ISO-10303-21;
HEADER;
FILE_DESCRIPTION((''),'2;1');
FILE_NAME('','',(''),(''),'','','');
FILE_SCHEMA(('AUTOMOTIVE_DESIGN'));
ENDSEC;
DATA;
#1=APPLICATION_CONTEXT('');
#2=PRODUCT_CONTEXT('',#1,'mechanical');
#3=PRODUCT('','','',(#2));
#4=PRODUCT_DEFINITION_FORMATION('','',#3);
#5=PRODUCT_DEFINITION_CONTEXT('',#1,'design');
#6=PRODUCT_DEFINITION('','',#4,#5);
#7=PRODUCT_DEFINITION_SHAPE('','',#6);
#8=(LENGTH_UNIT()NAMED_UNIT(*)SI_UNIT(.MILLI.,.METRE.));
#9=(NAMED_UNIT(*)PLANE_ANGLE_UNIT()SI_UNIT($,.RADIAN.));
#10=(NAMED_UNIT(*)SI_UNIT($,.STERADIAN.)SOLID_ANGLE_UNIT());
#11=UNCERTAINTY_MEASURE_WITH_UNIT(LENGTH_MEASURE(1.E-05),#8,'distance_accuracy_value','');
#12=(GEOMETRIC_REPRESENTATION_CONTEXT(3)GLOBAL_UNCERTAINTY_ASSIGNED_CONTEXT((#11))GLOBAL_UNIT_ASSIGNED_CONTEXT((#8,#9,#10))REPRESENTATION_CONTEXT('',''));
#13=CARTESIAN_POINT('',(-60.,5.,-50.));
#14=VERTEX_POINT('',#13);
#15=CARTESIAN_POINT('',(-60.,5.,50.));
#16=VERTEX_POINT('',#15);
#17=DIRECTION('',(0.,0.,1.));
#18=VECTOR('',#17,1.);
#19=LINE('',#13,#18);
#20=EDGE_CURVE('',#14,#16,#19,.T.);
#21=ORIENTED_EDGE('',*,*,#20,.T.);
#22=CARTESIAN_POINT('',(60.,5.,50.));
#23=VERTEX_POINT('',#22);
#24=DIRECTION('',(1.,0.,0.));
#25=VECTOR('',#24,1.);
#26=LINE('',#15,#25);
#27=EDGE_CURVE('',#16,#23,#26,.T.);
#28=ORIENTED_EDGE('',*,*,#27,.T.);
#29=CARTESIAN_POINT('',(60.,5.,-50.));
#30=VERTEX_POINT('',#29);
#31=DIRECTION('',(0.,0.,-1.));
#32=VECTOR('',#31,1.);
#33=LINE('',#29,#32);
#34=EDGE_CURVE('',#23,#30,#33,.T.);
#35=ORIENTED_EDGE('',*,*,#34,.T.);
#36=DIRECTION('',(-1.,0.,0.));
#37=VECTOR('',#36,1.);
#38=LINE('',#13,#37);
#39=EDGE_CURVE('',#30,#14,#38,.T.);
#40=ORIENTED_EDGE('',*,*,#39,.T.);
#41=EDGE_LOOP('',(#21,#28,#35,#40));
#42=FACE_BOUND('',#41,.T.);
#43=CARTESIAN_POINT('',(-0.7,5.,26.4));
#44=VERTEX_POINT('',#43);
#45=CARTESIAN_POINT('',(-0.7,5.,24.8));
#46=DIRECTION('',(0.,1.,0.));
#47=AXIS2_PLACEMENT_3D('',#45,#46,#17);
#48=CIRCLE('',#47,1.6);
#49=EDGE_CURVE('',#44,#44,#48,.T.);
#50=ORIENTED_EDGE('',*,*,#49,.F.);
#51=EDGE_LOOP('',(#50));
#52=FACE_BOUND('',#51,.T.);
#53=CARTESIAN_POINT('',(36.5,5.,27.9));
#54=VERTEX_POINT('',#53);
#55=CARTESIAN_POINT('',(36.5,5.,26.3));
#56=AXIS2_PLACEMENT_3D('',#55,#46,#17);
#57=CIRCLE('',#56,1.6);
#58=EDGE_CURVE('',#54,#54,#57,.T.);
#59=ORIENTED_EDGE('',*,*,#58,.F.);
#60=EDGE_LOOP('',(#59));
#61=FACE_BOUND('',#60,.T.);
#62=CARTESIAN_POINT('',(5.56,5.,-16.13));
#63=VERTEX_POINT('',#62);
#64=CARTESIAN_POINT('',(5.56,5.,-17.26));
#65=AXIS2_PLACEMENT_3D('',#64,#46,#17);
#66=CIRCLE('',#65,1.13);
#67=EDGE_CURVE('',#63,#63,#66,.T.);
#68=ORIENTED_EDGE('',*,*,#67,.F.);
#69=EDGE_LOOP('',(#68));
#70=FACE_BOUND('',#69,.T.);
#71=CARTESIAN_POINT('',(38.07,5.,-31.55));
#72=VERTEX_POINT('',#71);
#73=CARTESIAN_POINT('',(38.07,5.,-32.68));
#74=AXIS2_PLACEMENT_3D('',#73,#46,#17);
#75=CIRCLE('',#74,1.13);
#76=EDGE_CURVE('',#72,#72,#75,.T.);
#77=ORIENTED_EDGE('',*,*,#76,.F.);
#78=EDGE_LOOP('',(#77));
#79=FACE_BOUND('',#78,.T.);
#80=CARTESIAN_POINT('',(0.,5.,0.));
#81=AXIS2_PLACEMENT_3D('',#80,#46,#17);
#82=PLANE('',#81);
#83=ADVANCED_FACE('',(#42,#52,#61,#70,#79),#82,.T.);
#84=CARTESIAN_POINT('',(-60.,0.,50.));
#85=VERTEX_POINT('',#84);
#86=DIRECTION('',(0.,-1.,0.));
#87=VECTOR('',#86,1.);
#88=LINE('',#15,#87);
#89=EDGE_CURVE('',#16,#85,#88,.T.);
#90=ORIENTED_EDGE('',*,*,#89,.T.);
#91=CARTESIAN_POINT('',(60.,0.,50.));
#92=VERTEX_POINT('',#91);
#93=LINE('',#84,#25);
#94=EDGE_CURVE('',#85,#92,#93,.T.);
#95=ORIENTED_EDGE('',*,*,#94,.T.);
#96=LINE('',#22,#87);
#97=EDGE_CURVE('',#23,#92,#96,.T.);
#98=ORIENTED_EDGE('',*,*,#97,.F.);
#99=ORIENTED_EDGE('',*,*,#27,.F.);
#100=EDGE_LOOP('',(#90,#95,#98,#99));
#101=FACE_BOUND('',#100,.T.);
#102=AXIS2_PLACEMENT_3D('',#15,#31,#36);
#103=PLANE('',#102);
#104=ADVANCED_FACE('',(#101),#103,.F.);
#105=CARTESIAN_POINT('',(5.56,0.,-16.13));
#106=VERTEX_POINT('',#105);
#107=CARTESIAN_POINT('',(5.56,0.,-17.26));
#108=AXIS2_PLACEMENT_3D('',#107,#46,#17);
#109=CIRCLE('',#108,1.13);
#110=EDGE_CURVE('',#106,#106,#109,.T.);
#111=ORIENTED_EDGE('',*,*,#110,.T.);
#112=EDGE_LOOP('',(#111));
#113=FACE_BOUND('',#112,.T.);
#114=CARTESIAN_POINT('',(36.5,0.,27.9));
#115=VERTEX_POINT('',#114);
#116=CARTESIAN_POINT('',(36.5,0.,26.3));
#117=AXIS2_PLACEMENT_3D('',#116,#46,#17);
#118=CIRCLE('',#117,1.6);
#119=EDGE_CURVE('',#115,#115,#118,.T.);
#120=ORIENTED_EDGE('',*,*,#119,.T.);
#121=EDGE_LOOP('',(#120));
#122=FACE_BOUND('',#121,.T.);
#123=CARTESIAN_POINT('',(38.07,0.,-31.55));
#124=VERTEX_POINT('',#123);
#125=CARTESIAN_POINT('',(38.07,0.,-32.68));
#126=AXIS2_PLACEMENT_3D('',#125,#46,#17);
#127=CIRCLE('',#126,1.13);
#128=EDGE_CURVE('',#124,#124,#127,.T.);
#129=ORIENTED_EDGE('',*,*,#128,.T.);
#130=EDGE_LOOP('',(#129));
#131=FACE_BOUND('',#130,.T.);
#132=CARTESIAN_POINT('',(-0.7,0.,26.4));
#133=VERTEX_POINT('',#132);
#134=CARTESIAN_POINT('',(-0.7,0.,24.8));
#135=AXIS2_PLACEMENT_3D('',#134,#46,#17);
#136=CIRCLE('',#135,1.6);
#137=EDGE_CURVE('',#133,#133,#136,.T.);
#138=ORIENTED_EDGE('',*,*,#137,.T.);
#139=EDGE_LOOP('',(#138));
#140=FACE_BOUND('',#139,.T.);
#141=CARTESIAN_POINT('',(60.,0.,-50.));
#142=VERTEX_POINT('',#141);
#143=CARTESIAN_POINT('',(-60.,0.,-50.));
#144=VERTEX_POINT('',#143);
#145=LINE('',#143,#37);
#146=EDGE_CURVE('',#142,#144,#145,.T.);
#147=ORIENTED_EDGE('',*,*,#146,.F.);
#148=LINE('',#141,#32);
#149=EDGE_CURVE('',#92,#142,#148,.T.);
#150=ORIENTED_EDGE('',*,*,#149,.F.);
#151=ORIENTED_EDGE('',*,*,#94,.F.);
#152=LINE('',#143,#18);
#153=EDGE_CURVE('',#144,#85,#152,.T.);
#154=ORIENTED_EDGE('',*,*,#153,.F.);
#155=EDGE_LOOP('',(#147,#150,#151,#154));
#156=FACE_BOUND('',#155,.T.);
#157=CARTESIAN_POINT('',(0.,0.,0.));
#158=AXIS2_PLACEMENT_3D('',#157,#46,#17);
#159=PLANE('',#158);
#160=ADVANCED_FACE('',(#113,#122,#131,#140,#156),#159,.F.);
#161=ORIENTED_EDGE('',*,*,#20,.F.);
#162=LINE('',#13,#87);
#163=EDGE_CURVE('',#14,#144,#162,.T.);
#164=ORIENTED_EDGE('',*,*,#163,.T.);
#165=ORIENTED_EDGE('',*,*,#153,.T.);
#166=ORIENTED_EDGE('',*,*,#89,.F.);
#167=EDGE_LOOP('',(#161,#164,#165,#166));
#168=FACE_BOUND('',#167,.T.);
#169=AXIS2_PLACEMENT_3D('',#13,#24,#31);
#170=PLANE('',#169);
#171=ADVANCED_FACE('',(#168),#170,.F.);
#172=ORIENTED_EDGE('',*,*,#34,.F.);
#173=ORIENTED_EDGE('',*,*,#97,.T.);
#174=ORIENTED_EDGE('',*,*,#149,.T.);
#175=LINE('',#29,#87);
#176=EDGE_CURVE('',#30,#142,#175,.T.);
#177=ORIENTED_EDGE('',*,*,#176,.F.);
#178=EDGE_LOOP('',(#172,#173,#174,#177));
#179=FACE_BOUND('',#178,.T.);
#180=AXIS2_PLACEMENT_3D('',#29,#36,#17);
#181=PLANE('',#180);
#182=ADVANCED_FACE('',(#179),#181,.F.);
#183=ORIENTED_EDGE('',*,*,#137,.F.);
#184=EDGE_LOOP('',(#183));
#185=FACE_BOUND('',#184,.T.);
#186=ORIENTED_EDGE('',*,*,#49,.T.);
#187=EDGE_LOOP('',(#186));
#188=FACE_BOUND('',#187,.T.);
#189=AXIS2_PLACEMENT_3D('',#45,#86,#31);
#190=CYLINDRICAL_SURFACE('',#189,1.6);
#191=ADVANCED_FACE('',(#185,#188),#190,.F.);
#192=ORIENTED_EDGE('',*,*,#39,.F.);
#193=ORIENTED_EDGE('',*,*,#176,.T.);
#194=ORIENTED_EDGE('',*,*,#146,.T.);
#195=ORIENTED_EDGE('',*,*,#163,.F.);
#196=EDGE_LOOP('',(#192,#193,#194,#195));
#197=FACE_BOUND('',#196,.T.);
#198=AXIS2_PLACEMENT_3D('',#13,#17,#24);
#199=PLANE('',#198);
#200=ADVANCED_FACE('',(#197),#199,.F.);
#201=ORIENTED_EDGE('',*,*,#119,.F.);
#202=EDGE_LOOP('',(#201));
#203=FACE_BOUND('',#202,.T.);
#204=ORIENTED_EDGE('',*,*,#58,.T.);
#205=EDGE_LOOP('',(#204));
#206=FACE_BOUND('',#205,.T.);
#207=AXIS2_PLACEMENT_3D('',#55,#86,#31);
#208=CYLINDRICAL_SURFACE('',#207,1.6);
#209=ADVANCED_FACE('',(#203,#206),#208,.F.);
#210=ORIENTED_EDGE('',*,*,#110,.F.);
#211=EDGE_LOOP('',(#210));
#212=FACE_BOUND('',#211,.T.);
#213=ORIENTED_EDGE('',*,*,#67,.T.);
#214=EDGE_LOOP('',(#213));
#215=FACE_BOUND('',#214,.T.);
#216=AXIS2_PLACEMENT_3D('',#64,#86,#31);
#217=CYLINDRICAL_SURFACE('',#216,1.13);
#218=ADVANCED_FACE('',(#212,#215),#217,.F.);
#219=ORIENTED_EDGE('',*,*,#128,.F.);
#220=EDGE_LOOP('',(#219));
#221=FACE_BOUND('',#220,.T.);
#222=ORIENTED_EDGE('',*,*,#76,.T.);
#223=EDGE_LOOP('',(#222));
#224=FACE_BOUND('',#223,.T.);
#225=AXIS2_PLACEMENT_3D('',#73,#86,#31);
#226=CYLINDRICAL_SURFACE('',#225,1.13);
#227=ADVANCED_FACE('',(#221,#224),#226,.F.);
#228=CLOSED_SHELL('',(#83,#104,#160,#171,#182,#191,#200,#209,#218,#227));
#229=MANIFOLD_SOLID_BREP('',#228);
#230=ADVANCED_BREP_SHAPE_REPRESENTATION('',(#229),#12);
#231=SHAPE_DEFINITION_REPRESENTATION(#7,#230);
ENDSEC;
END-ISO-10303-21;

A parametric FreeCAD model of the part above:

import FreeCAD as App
import Part
import Sketcher
from FreeCAD import Vector
Q = App.Units.Quantity

doc = App.newDocument("Part")
params = doc.addObject("Spreadsheet::Sheet", "Params")
for row, (alias, value) in enumerate([
    ("sketch1_diameter", "3.2 mm"),
    ("sketch1_diameter2", "2.26 mm"),
    ("sketch1_width", "120 mm"),
    ("sketch1_height", "100 mm"),
    ("pad1_length", "5 mm"),
], start=1):
    params.set(f"A{row}", alias)
    params.set(f"B{row}", "=" + value)
    params.setAlias(f"B{row}", alias)

body = doc.addObject("PartDesign::Body", "Body")

# Sketch on XZ plane
sketch1 = doc.addObject("Sketcher::SketchObject", "Sketch")
body.addObject(sketch1)
sketch1.AttachmentSupport = (doc.XZ_Plane, [""])
sketch1.MapMode = "FlatFace"
sketch1.addGeometry(Part.LineSegment(Vector(-60, -50, 0), Vector(-60, 50, 0)), False)
sketch1.addGeometry(Part.LineSegment(Vector(-60, 50, 0), Vector(60, 50, 0)), False)
sketch1.addGeometry(Part.LineSegment(Vector(60, 50, 0), Vector(60, -50, 0)), False)
sketch1.addGeometry(Part.LineSegment(Vector(60, -50, 0), Vector(-60, -50, 0)), False)
sketch1.addGeometry(Part.Circle(Vector(-0.7, 24.8, 0), Vector(0, 0, 1), 1.6), False)
sketch1.addGeometry(Part.Circle(Vector(36.5, 26.3, 0), Vector(0, 0, 1), 1.6), False)
sketch1.addGeometry(Part.Circle(Vector(5.6, -17.3, 0), Vector(0, 0, 1), 1.1), False)
sketch1.addGeometry(Part.Circle(Vector(38.1, -32.7, 0), Vector(0, 0, 1), 1.1), False)
sketch1.addConstraint(Sketcher.Constraint("Coincident", 0, 2, 1, 1))
sketch1.addConstraint(Sketcher.Constraint("Coincident", 1, 2, 2, 1))
sketch1.addConstraint(Sketcher.Constraint("Coincident", 2, 2, 3, 1))
sketch1.addConstraint(Sketcher.Constraint("Coincident", 3, 2, 0, 1))
sketch1.addConstraint(Sketcher.Constraint("Vertical", 0))
sketch1.addConstraint(Sketcher.Constraint("Horizontal", 1))
sketch1.addConstraint(Sketcher.Constraint("Vertical", 2))
sketch1.addConstraint(Sketcher.Constraint("Horizontal", 3))
sketch1.addConstraint(Sketcher.Constraint("Equal", 4, 5))
sketch1.addConstraint(Sketcher.Constraint("Equal", 6, 7))
sketch1.addConstraint(Sketcher.Constraint("Symmetric", 0, 2, 2, 2, -1, 1))
sketch1.addConstraint(Sketcher.Constraint("Diameter", 4, Q("3.2 mm")))
sketch1.addConstraint(Sketcher.Constraint("Diameter", 6, Q("2.26 mm")))
sketch1.addConstraint(Sketcher.Constraint("DistanceX", 1, 1, 1, 2, Q("120 mm")))
sketch1.addConstraint(Sketcher.Constraint("DistanceY", 0, 1, 0, 2, Q("100 mm")))
sketch1.addConstraint(Sketcher.Constraint("DistanceX", 4, 3, -1, 1, Q("0.7 mm")))
sketch1.addConstraint(Sketcher.Constraint("DistanceY", -1, 1, 4, 3, Q("24.8 mm")))
sketch1.addConstraint(Sketcher.Constraint("DistanceX", -1, 1, 5, 3, Q("36.5 mm")))
sketch1.addConstraint(Sketcher.Constraint("DistanceY", -1, 1, 5, 3, Q("26.3 mm")))
sketch1.addConstraint(Sketcher.Constraint("DistanceX", -1, 1, 6, 3, Q("5.56 mm")))
sketch1.addConstraint(Sketcher.Constraint("DistanceY", 6, 3, -1, 1, Q("17.26 mm")))
sketch1.addConstraint(Sketcher.Constraint("DistanceX", -1, 1, 7, 3, Q("38.07 mm")))
sketch1.addConstraint(Sketcher.Constraint("DistanceY", 7, 3, -1, 1, Q("32.68 mm")))
sketch1.setExpression("Constraints[11]", "Params.sketch1_diameter")
sketch1.setExpression("Constraints[12]", "Params.sketch1_diameter2")
sketch1.setExpression("Constraints[13]", "Params.sketch1_width")
sketch1.setExpression("Constraints[14]", "Params.sketch1_height")
pad1 = doc.addObject("PartDesign::Pad", "Pad")
body.addObject(pad1)
pad1.Profile = sketch1
pad1.setExpression("Length", "Params.pad1_length")
pad1.Reversed = True

doc.recompute()
